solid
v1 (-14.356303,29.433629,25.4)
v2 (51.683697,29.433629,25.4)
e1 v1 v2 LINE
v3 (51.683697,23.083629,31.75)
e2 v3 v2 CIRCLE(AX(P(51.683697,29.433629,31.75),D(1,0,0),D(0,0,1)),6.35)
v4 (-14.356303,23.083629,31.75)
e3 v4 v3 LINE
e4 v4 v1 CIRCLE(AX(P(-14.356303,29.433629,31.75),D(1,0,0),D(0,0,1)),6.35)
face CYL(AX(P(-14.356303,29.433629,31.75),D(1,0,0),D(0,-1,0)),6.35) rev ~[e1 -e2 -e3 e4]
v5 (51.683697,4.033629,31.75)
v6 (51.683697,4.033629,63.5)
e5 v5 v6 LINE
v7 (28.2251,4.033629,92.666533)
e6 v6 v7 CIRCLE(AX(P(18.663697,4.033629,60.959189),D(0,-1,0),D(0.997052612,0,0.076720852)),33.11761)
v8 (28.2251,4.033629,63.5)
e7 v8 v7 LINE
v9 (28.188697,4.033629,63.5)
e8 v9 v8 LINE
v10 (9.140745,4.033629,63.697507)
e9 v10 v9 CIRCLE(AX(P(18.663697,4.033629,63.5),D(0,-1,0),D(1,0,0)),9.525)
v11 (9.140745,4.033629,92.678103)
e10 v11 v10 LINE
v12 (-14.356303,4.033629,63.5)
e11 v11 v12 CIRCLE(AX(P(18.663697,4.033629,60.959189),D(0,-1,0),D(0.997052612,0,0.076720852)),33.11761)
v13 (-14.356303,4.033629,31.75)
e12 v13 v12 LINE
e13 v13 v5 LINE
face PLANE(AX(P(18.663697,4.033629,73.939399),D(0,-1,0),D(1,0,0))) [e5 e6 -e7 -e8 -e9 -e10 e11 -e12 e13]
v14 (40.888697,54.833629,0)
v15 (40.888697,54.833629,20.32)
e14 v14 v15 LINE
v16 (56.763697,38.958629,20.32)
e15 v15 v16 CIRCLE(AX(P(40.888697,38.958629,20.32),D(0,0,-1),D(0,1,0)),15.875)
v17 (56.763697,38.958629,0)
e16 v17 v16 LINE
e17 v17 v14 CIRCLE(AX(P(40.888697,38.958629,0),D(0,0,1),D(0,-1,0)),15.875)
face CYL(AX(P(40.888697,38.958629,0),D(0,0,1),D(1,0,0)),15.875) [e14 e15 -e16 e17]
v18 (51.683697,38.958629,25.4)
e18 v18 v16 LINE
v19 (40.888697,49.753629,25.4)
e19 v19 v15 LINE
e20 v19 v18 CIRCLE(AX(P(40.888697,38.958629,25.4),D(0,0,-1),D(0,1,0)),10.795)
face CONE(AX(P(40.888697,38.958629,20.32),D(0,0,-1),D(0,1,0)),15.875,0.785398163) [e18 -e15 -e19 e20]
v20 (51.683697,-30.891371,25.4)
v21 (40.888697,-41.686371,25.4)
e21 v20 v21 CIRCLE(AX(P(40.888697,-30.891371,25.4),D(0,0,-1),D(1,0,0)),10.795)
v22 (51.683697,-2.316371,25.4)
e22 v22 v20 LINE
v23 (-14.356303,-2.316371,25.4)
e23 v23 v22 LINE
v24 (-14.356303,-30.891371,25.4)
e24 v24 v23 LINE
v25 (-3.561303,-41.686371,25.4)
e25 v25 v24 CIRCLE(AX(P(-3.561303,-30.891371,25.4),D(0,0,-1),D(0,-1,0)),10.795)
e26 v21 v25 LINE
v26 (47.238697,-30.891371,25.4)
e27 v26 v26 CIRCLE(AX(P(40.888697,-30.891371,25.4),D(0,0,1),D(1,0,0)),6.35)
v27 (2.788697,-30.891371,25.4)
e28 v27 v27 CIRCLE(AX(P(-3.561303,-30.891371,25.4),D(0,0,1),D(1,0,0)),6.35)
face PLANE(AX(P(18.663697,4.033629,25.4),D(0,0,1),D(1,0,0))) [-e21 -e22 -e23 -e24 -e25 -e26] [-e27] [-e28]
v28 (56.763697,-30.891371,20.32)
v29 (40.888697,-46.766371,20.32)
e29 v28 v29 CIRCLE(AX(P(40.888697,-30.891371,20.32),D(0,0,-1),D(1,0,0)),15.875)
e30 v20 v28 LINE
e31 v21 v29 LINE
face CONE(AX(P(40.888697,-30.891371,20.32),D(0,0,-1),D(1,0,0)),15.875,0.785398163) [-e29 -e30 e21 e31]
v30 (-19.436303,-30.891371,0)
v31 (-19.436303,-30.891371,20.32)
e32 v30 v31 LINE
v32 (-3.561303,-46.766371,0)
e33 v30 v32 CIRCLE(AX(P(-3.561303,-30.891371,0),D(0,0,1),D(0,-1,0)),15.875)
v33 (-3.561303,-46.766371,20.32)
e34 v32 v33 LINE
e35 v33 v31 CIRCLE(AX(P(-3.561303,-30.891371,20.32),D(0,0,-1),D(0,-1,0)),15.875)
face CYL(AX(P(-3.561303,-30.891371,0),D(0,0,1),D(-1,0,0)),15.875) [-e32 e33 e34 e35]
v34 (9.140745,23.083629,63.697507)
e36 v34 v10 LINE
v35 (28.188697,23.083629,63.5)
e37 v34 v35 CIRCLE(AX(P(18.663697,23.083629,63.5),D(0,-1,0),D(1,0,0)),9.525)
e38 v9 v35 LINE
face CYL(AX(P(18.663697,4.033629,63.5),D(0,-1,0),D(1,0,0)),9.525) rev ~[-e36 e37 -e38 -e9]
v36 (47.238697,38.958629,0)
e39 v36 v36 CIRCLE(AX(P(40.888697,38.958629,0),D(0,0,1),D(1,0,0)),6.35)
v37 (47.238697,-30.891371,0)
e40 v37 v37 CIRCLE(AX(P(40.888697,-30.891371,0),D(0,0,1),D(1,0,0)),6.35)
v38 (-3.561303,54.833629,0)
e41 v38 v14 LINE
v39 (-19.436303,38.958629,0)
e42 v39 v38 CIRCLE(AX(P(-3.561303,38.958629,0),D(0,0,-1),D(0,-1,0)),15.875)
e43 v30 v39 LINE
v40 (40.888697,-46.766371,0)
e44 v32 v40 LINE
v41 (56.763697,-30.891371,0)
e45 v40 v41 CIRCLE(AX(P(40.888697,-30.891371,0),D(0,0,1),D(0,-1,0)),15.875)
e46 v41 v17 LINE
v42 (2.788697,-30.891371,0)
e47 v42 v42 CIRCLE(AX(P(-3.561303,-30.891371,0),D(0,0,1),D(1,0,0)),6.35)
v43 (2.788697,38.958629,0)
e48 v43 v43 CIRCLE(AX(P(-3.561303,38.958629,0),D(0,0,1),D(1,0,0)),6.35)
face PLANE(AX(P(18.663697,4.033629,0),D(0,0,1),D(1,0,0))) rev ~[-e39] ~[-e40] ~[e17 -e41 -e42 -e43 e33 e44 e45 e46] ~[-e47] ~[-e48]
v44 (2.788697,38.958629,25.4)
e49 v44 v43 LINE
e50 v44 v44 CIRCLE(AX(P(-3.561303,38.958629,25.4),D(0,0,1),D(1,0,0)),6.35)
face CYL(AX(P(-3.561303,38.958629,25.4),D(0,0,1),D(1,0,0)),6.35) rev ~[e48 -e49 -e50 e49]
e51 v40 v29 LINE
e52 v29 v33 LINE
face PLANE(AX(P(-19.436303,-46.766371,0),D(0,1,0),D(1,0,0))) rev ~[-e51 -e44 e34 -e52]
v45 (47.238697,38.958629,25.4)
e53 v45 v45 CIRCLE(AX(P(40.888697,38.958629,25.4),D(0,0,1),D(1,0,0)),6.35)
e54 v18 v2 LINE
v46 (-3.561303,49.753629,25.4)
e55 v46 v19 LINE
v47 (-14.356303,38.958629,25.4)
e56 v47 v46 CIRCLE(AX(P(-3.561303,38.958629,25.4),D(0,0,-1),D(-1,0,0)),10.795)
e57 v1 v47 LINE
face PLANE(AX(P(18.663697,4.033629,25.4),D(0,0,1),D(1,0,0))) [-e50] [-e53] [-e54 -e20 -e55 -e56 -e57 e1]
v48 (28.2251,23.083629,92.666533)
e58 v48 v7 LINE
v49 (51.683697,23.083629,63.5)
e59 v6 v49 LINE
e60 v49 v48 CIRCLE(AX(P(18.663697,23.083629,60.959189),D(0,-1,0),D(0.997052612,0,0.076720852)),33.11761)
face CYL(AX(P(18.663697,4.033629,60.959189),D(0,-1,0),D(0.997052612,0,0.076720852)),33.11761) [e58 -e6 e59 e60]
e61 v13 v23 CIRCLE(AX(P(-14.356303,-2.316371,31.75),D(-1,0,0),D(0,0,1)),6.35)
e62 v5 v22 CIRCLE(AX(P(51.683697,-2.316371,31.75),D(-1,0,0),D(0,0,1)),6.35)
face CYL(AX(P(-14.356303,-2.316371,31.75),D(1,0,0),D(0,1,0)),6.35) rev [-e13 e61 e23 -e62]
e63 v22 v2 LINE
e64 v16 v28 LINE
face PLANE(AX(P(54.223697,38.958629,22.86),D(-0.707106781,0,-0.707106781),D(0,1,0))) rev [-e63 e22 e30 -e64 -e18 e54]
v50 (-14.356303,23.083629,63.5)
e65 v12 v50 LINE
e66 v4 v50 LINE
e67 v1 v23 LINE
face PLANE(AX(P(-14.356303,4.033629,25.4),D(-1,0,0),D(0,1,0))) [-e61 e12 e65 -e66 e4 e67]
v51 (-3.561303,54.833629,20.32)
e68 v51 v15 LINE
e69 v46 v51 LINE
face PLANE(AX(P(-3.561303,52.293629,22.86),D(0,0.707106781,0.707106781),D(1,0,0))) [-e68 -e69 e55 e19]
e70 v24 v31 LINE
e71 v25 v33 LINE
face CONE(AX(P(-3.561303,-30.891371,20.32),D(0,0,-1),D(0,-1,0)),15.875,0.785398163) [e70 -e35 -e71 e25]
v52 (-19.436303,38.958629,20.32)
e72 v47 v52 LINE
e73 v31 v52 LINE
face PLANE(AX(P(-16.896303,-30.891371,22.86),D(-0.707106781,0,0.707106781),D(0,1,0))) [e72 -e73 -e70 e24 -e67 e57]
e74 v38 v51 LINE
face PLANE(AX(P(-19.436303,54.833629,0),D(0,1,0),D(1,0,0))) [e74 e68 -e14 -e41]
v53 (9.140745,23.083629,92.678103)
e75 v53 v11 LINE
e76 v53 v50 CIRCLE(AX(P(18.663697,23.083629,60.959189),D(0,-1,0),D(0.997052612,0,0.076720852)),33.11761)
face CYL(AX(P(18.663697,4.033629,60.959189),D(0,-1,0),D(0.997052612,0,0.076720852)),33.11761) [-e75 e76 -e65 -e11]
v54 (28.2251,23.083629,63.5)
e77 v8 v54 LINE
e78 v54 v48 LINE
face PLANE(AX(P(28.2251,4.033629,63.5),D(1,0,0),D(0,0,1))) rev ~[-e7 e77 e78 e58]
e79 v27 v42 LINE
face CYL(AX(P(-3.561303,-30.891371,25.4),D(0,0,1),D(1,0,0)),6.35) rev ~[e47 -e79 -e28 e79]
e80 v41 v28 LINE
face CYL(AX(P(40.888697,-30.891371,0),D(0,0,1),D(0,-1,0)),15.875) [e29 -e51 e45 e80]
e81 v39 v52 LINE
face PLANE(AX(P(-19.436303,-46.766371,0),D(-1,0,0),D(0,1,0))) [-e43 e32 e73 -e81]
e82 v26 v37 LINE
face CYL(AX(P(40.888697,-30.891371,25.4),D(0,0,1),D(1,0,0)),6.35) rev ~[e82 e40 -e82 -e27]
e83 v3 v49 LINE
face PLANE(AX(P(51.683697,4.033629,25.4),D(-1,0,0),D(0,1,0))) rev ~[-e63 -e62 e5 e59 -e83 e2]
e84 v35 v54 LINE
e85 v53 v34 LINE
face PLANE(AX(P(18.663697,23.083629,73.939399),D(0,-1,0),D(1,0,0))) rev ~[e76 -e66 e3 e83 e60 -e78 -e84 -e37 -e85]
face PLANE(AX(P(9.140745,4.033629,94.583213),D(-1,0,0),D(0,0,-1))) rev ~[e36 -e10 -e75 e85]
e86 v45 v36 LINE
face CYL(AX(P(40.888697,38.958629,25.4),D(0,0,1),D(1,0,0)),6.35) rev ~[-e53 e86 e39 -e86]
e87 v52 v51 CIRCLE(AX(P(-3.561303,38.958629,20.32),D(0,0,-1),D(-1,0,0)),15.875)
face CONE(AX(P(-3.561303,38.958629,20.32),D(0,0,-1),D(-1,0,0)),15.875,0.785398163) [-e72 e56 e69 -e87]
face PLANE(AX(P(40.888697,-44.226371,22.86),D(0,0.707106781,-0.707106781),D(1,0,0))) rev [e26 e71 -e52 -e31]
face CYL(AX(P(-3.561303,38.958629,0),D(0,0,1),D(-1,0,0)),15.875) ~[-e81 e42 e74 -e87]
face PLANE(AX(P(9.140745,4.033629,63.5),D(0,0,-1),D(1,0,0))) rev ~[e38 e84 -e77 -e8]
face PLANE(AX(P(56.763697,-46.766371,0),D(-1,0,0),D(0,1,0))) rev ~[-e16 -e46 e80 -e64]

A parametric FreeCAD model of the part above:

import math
import FreeCAD as App
import Part
import Sketcher
Q = App.Units.Quantity


def edges_at(feature, points):
    """Names of the edges that pass closest to the given points."""
    edges = feature.Shape.Edges
    near = lambda p: min(range(len(edges)), key=lambda i: edges[i].distToShape(Part.Vertex(*p))[0])
    return sorted({f"Edge{near(p) + 1}" for p in points})


def add_polygon(sketch, points):
    """Adds a closed chain of lines whose ends are joined by coincident constraints."""
    first, n = sketch.GeometryCount, len(points)
    for a, b in zip(points, points[1:] + points[:1]):
        sketch.addGeometry(Part.LineSegment(App.Vector(*a, 0), App.Vector(*b, 0)), False)
    for i in range(n):
        sketch.addConstraint(Sketcher.Constraint("Coincident", first + i, 2, first + (i + 1) % n, 1))

doc = App.newDocument("Part")
params = doc.addObject("Spreadsheet::Sheet", "Params")
for row, (alias, value) in enumerate([
    ("sketch1_width", "3 in"),
    ("sketch1_height", "4 in"),
    ("pad1_length", "1 in"),
    ("fillet_radius", "0.625 in"),
    ("chamfer_size", "0.2 in"),
    ("sketch2_diameter", "0.5 in"),
    ("pocket1_length", "1 in"),
    ("sketch3_width", "2.6 in"),
    ("sketch3_height", "0.75 in"),
    ("pad2_length", "1.5 in"),
    ("sketch4_width", "2.6 in"),
    ("pad3_length", "0.75 in"),
    ("sketch5_diameter", "0.75 in"),
    ("pocket2_length", "1 in"),
    ("pocket3_length", "1 in"),
    ("fillet2_radius", "0.25 in"),
], start=1):
    params.set(f"A{row}", alias)
    params.set(f"B{row}", "=" + value)
    params.setAlias(f"B{row}", alias)

body = doc.addObject("PartDesign::Body", "Body")

sketch1 = body.newObject("Sketcher::SketchObject", "Sketch")
sketch1.AttachmentSupport = (doc.getObject("XY_Plane"), [""])
sketch1.MapMode = "FlatFace"
add_polygon(sketch1, [(-19, 55), (-19, -47), (57, -47), (57, 55)])
sketch1.addConstraint(Sketcher.Constraint("Vertical", 0))
sketch1.addConstraint(Sketcher.Constraint("Horizontal", 1))
sketch1.addConstraint(Sketcher.Constraint("Vertical", 2))
sketch1.addConstraint(Sketcher.Constraint("Horizontal", 3))
sketch1.addConstraint(Sketcher.Constraint("DistanceX", 1, 1, 1, 2, Q("3 in")))
sketch1.addConstraint(Sketcher.Constraint("DistanceY", 0, 2, 0, 1, Q("4 in")))
sketch1.addConstraint(Sketcher.Constraint("DistanceY", 0, 2, -1, 1, 46.766371))
sketch1.addConstraint(Sketcher.Constraint("DistanceX", 0, 2, -1, 1, 19.436303))
sketch1.setExpression("Constraints[8]", "Params.sketch1_width")
sketch1.setExpression("Constraints[9]", "Params.sketch1_height")
pad1 = body.newObject("PartDesign::Pad", "Pad")
pad1.Profile = sketch1
pad1.setExpression("Length", "Params.pad1_length")
doc.recompute()

fillet = body.newObject("PartDesign::Fillet", "Fillet")
fillet.Base = (pad1, edges_at(pad1, [
    (-19.436, -46.766, 12.7),
    (56.764, -46.766, 12.7),
    (56.764, 54.834, 12.7),
    (-19.436, 54.834, 12.7),
]))
fillet.setExpression("Radius", "Params.fillet_radius")
doc.recompute()

chamfer = body.newObject("PartDesign::Chamfer", "Chamfer")
chamfer.Base = (fillet, edges_at(fillet, [
    (18.664, 54.834, 25.4),
    (-14.787, 50.184, 25.4),
    (-19.436, 4.034, 25.4),
    (-14.787, -42.117, 25.4),
    (18.664, -46.766, 25.4),
    (52.114, -42.117, 25.4),
    (56.764, 4.034, 25.4),
    (52.114, 50.184, 25.4),
]))
chamfer.setExpression("Size", "Params.chamfer_size")

sketch2 = body.newObject("Sketcher::SketchObject", "Sketch001")
sketch2.AttachmentSupport = (doc.getObject("XY_Plane"), [""])
sketch2.MapMode = "FlatFace"
sketch2.AttachmentOffset = App.Placement(App.Vector(0, 0, 1 * 25.4), App.Rotation())
sketch2.addGeometry(Part.Circle(App.Vector(-4, -31, 0), App.Vector(0, 0, 1), 6), False)
sketch2.addGeometry(Part.Circle(App.Vector(-4, 39, 0), App.Vector(0, 0, 1), 6), False)
sketch2.addGeometry(Part.Circle(App.Vector(41, 39, 0), App.Vector(0, 0, 1), 6), False)
sketch2.addGeometry(Part.Circle(App.Vector(41, -31, 0), App.Vector(0, 0, 1), 6), False)
sketch2.addConstraint(Sketcher.Constraint("Equal", 0, 1))
sketch2.addConstraint(Sketcher.Constraint("Equal", 1, 2))
sketch2.addConstraint(Sketcher.Constraint("Equal", 2, 3))
sketch2.addConstraint(Sketcher.Constraint("Horizontal", 1, 3, 2, 3))
sketch2.addConstraint(Sketcher.Constraint("Horizontal", 0, 3, 3, 3))
sketch2.addConstraint(Sketcher.Constraint("Vertical", 0, 3, 1, 3))
sketch2.addConstraint(Sketcher.Constraint("Vertical", 2, 3, 3, 3))
sketch2.addConstraint(Sketcher.Constraint("Diameter", 0, Q("0.5 in")))
sketch2.addConstraint(Sketcher.Constraint("DistanceY", 0, 3, 1, 3, Q("2.75 in")))
sketch2.addConstraint(Sketcher.Constraint("DistanceX", 1, 3, 2, 3, Q("1.75 in")))
sketch2.addConstraint(Sketcher.Constraint("DistanceY", 0, 3, -1, 1, 30.891371))
sketch2.addConstraint(Sketcher.Constraint("DistanceX", 0, 3, -1, 1, 3.561303))
sketch2.setExpression("Constraints[7]", "Params.sketch2_diameter")
pocket1 = body.newObject("PartDesign::Pocket", "Pocket")
pocket1.Profile = sketch2
pocket1.setExpression("Length", "Params.pocket1_length")

sketch3 = body.newObject("Sketcher::SketchObject", "Sketch002")
sketch3.AttachmentSupport = (doc.getObject("XY_Plane"), [""])
sketch3.MapMode = "FlatFace"
sketch3.AttachmentOffset = App.Placement(App.Vector(0, 0, 1 * 25.4), App.Rotation())
add_polygon(sketch3, [(-14, 23), (-14, 4), (52, 4), (52, 23)])
sketch3.addConstraint(Sketcher.Constraint("Vertical", 0))
sketch3.addConstraint(Sketcher.Constraint("Horizontal", 1))
sketch3.addConstraint(Sketcher.Constraint("Vertical", 2))
sketch3.addConstraint(Sketcher.Constraint("Horizontal", 3))
sketch3.addConstraint(Sketcher.Constraint("DistanceX", 1, 1, 1, 2, Q("2.6 in")))
sketch3.addConstraint(Sketcher.Constraint("DistanceY", 0, 2, 0, 1, Q("0.75 in")))
sketch3.addConstraint(Sketcher.Constraint("DistanceY", -1, 1, 0, 2, 4.033629))
sketch3.addConstraint(Sketcher.Constraint("DistanceX", 0, 2, -1, 1, 14.356303))
sketch3.setExpression("Constraints[8]", "Params.sketch3_width")
sketch3.setExpression("Constraints[9]", "Params.sketch3_height")
pad2 = body.newObject("PartDesign::Pad", "Pad001")
pad2.Profile = sketch3
pad2.setExpression("Length", "Params.pad2_length")

sketch4 = body.newObject("Sketcher::SketchObject", "Sketch003")
sketch4.AttachmentSupport = (doc.getObject("XZ_Plane"), [""])
sketch4.MapMode = "FlatFace"
sketch4.AttachmentOffset = App.Placement(App.Vector(0, 0, -4.033629), App.Rotation())
sketch4.addGeometry(Part.LineSegment(App.Vector(-14, 64, 0), App.Vector(52, 64, 0)), False)
sketch4.addGeometry(Part.ArcOfCircle(Part.Circle(App.Vector(19, 61, 0), App.Vector(0, 0, 1), 33), math.radians(4), math.radians(176)), False)
sketch4.addConstraint(Sketcher.Constraint("Coincident", 0, 1, 1, 2))
sketch4.addConstraint(Sketcher.Constraint("Coincident", 1, 1, 0, 2))
sketch4.addConstraint(Sketcher.Constraint("Horizontal", 0))
sketch4.addConstraint(Sketcher.Constraint("DistanceX", 0, 1, 0, 2, Q("2.6 in")))
sketch4.addConstraint(Sketcher.Constraint("DistanceY", -1, 1, 0, 1, Q("2.5 in")))
sketch4.addConstraint(Sketcher.Constraint("Radius", 1, 33.11761))
sketch4.addConstraint(Sketcher.Constraint("DistanceX", -1, 1, 1, 3, 18.663697))
sketch4.setExpression("Constraints[3]", "Params.sketch4_width")
pad3 = body.newObject("PartDesign::Pad", "Pad002")
pad3.Profile = sketch4
pad3.setExpression("Length", "Params.pad3_length")
pad3.Reversed = True

sketch5 = body.newObject("Sketcher::SketchObject", "Sketch004")
sketch5.AttachmentSupport = (doc.getObject("XZ_Plane"), [""])
sketch5.MapMode = "FlatFace"
sketch5.AttachmentOffset = App.Placement(App.Vector(0, 0, -4.033629), App.Rotation())
sketch5.addGeometry(Part.Circle(App.Vector(19, 64, 0), App.Vector(0, 0, 1), 10), False)
sketch5.addConstraint(Sketcher.Constraint("Diameter", 0, Q("0.75 in")))
sketch5.addConstraint(Sketcher.Constraint("DistanceY", -1, 1, 0, 3, Q("2.5 in")))
sketch5.addConstraint(Sketcher.Constraint("DistanceX", -1, 1, 0, 3, 18.663697))
sketch5.setExpression("Constraints[0]", "Params.sketch5_diameter")
pocket2 = body.newObject("PartDesign::Pocket", "Pocket001")
pocket2.Profile = sketch5
pocket2.setExpression("Length", "Params.pocket2_length")

sketch6 = body.newObject("Sketcher::SketchObject", "Sketch005")
sketch6.AttachmentSupport = (doc.getObject("XZ_Plane"), [""])
sketch6.MapMode = "FlatFace"
sketch6.AttachmentOffset = App.Placement(App.Vector(0, 0, -4.033629), App.Rotation())
add_polygon(sketch6, [(9, 95), (9, 64), (28, 64), (28, 95)])
sketch6.addConstraint(Sketcher.Constraint("Vertical", 0))
sketch6.addConstraint(Sketcher.Constraint("Horizontal", 1))
sketch6.addConstraint(Sketcher.Constraint("Vertical", 2))
sketch6.addConstraint(Sketcher.Constraint("Horizontal", 3))
sketch6.addConstraint(Sketcher.Constraint("DistanceY", -1, 1, 0, 2, Q("2.5 in")))
sketch6.addConstraint(Sketcher.Constraint("DistanceX", -1, 1, 1, 2, 28.2251))
sketch6.addConstraint(Sketcher.Constraint("DistanceX", 1, 1, 1, 2, 19.084354))
sketch6.addConstraint(Sketcher.Constraint("DistanceY", 0, 2, 0, 1, 31.083213))
pocket3 = body.newObject("PartDesign::Pocket", "Pocket002")
pocket3.Profile = sketch6
pocket3.setExpression("Length", "Params.pocket3_length")
doc.recompute()

fillet2 = body.newObject("PartDesign::Fillet", "Fillet001")
fillet2.Base = (pocket3, edges_at(pocket3, [(18.664, 4.034, 25.4), (18.664, 23.084, 25.4)]))
fillet2.setExpression("Radius", "Params.fillet2_radius")

doc.recompute()
